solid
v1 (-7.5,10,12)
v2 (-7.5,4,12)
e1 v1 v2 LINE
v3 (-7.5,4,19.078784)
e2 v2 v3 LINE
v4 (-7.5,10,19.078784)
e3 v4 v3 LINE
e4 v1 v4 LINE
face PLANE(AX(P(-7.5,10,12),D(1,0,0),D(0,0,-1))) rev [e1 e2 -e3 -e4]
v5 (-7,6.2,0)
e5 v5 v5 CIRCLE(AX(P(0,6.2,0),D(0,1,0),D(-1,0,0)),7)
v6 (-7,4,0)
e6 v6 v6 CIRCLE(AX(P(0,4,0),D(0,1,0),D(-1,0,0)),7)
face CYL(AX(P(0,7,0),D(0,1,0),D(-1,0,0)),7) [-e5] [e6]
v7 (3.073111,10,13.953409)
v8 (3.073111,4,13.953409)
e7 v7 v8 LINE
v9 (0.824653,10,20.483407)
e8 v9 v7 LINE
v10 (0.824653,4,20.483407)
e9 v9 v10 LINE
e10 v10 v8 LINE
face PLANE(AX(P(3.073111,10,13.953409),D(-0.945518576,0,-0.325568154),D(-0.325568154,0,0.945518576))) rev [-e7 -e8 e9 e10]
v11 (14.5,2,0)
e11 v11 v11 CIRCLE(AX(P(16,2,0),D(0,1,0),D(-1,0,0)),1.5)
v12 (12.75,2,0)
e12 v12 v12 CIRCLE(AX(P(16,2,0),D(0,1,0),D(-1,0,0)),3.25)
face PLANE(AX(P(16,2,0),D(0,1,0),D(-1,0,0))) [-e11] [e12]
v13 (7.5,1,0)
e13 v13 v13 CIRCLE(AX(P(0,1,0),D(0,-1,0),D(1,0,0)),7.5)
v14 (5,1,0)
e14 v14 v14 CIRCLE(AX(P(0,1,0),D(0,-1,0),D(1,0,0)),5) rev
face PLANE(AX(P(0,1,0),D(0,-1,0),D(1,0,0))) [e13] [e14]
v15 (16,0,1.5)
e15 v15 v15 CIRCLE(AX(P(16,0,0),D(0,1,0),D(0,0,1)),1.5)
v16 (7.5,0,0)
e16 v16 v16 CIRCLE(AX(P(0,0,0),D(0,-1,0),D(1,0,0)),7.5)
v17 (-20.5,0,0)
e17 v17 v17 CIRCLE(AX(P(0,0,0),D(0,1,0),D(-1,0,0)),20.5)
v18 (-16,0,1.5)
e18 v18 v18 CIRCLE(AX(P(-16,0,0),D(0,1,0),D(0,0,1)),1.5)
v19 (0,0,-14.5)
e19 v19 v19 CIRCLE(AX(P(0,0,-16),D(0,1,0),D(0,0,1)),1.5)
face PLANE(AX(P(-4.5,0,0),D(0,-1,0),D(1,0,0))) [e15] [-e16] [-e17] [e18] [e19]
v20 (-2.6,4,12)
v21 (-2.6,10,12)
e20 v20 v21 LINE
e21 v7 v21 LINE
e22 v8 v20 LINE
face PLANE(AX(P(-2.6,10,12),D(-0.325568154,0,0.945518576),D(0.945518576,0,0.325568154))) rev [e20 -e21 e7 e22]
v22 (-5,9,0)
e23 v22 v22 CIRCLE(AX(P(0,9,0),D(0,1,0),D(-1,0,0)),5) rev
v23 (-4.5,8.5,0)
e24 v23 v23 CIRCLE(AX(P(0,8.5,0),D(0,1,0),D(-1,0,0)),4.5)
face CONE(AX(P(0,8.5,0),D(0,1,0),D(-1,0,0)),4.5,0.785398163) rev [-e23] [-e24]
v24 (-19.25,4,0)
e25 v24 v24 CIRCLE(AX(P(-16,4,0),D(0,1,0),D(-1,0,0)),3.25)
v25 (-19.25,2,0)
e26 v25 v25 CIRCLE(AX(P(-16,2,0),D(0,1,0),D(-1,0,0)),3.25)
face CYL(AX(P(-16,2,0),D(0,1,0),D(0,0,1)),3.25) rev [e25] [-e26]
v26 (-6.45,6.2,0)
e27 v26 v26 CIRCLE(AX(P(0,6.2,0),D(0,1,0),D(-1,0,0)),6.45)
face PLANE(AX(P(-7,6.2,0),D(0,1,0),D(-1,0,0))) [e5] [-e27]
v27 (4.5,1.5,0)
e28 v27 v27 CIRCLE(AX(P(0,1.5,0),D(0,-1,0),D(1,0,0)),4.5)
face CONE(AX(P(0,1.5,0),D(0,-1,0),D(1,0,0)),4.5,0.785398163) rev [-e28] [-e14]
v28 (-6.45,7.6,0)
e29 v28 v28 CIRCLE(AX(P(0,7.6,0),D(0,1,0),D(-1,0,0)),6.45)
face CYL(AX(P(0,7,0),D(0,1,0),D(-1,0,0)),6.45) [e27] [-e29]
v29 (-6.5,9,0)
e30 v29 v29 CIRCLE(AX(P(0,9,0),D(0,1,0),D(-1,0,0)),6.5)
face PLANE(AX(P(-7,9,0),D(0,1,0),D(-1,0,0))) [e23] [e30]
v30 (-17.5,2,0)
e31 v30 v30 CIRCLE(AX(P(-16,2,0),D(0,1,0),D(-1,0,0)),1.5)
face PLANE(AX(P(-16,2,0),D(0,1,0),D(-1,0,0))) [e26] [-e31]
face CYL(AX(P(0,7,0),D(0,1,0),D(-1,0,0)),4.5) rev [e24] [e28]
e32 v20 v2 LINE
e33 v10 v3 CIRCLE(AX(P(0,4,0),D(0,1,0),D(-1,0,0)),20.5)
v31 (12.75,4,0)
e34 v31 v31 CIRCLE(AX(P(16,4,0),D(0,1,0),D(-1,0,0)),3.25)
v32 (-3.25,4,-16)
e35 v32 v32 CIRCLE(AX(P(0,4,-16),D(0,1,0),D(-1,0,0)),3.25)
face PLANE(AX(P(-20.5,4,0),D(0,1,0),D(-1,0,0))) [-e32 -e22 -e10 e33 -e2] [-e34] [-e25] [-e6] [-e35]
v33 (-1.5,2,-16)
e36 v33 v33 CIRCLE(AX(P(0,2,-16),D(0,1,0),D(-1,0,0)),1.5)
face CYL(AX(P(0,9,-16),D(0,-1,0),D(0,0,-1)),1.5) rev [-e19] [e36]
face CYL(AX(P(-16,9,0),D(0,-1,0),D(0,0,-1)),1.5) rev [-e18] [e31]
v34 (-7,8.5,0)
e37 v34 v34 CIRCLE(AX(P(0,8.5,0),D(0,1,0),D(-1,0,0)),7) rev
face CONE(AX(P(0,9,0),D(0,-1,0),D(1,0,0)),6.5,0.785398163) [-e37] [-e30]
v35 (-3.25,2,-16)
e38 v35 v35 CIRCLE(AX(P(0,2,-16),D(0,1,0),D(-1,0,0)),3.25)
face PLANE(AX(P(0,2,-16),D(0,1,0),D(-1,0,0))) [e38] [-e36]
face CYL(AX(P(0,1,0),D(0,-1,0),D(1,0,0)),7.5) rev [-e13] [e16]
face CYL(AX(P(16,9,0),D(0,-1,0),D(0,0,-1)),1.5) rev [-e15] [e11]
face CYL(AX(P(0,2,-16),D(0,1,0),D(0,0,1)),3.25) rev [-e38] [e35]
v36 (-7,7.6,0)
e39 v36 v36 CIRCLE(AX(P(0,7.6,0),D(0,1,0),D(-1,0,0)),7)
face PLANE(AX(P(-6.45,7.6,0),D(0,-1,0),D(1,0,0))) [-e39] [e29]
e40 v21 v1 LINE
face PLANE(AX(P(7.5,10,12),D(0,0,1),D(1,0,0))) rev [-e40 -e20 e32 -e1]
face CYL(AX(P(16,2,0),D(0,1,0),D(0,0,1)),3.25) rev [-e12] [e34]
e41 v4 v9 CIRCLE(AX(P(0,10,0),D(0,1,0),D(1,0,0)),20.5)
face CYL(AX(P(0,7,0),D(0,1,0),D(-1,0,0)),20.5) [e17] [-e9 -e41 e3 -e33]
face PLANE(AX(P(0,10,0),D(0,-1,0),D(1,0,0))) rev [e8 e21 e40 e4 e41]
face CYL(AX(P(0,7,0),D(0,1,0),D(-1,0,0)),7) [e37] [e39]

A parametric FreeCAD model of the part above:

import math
import FreeCAD as App
import Part
import Sketcher
Q = App.Units.Quantity


def edges_at(feature, points):
    """Names of the edges that pass closest to the given points."""
    edges = feature.Shape.Edges
    near = lambda p: min(range(len(edges)), key=lambda i: edges[i].distToShape(Part.Vertex(*p))[0])
    return sorted({f"Edge{near(p) + 1}" for p in points})


def add_polygon(sketch, points):
    """Adds a closed chain of lines whose ends are joined by coincident constraints."""
    first, n = sketch.GeometryCount, len(points)
    for a, b in zip(points, points[1:] + points[:1]):
        sketch.addGeometry(Part.LineSegment(App.Vector(*a, 0), App.Vector(*b, 0)), False)
    for i in range(n):
        sketch.addConstraint(Sketcher.Constraint("Coincident", first + i, 2, first + (i + 1) % n, 1))

doc = App.newDocument("Part")
body = doc.addObject("PartDesign::Body", "Body")

# Sketch on XY plane
sketch1 = body.newObject("Sketcher::SketchObject", "Sketch")
sketch1.AttachmentSupport = (doc.getObject("XY_Plane"), [""])
sketch1.MapMode = "FlatFace"
add_polygon(sketch1, [(-20.5, 0), (-4.5, 0), (-4.5, 9), (-7, 9), (-7, 7.6), (-6.5, 7.6), (-6.5, 6.2), (-7, 6.2), (-7, 4), (-20.5, 4)])  # lines 0-9
sketch1.addConstraint([
    Sketcher.Constraint("Horizontal", 0),
    Sketcher.Constraint("Vertical", 1),
    Sketcher.Constraint("Horizontal", 2),
    Sketcher.Constraint("Vertical", 3),
    Sketcher.Constraint("Horizontal", 4),
    Sketcher.Constraint("Vertical", 5),
    Sketcher.Constraint("Horizontal", 6),
    Sketcher.Constraint("Vertical", 7),
    Sketcher.Constraint("Horizontal", 8),
    Sketcher.Constraint("Vertical", 9),
    Sketcher.Constraint("PointOnObject", 0, 2, -1),
    Sketcher.Constraint("Vertical", 3, 2, 6, 2),
    Sketcher.Constraint("Equal", 3, 5),
    Sketcher.Constraint("DistanceX", 0, 1, 0, 2, 16.0),
    Sketcher.Constraint("DistanceY", 1, 1, 1, 2, 9.0),
    Sketcher.Constraint("DistanceY", 9, 2, 9, 1, 4.0),
    Sketcher.Constraint("DistanceX", 2, 2, 2, 1, 2.5),
    Sketcher.Constraint("DistanceY", 3, 2, 3, 1, 1.4),
    Sketcher.Constraint("DistanceX", 2, 2, -1, 1, 7.0),
    Sketcher.Constraint("DistanceX", 4, 1, 4, 2, 0.55),
])
revolution = body.newObject("PartDesign::Revolution", "Revolution")
revolution.Profile = sketch1
revolution.ReferenceAxis = (sketch1, ["V_Axis"])
revolution.Angle = 360

# Sketch on XZ plane
sketch2 = body.newObject("Sketcher::SketchObject", "Sketch001")
sketch2.AttachmentSupport = (doc.getObject("XZ_Plane"), [""])
sketch2.MapMode = "FlatFace"
sketch2.addGeometry([
    Part.Circle(App.Vector(-16, 0, 0), App.Vector(0, 0, 1), 1.5),
    Part.Circle(App.Vector(0, -16, 0), App.Vector(0, 0, 1), 1.5),
    Part.Circle(App.Vector(16, 0, 0), App.Vector(0, 0, 1), 1.5),
], False)
sketch2.addConstraint([
    Sketcher.Constraint("Equal", 0, 1),
    Sketcher.Constraint("Equal", 1, 2),
    Sketcher.Constraint("Symmetric", 0, 3, 2, 3, -1, 1),
    Sketcher.Constraint("PointOnObject", 0, 3, -1),
    Sketcher.Constraint("PointOnObject", 1, 3, -2),
    Sketcher.Constraint("Diameter", 0, 3.0),
    Sketcher.Constraint("DistanceX", 0, 3, -1, 1, 16.0),
    Sketcher.Constraint("DistanceY", 1, 3, -1, 1, 16.0),
])
pocket1 = body.newObject("PartDesign::Pocket", "Pocket")
pocket1.Profile = sketch2
pocket1.Type = "ThroughAll"

# Sketch on XZ plane
sketch3 = body.newObject("Sketcher::SketchObject", "Sketch002")
sketch3.AttachmentSupport = (doc.getObject("XZ_Plane"), [""])
sketch3.MapMode = "FlatFace"
sketch3.AttachmentOffset = App.Placement(App.Vector(0, 0, -4), App.Rotation())
sketch3.addGeometry([
    Part.Circle(App.Vector(-16, 0, 0), App.Vector(0, 0, 1), 3.2),
    Part.Circle(App.Vector(0, -16, 0), App.Vector(0, 0, 1), 3.2),
    Part.Circle(App.Vector(16, 0, 0), App.Vector(0, 0, 1), 3.2),
], False)
sketch3.addConstraint([
    Sketcher.Constraint("Equal", 0, 1),
    Sketcher.Constraint("Equal", 1, 2),
    Sketcher.Constraint("Symmetric", 0, 3, 2, 3, -1, 1),
    Sketcher.Constraint("PointOnObject", 0, 3, -1),
    Sketcher.Constraint("PointOnObject", 1, 3, -2),
    Sketcher.Constraint("Diameter", 0, 6.5),
    Sketcher.Constraint("DistanceX", 0, 3, -1, 1, 16.0),
    Sketcher.Constraint("DistanceY", 1, 3, -1, 1, 16.0),
])
pocket2 = body.newObject("PartDesign::Pocket", "Pocket001")
pocket2.Profile = sketch3
pocket2.Length = 2
pocket2.Reversed = True

# Sketch on XZ plane
sketch4 = body.newObject("Sketcher::SketchObject", "Sketch003")
sketch4.AttachmentSupport = (doc.getObject("XZ_Plane"), [""])
sketch4.MapMode = "FlatFace"
sketch4.AttachmentOffset = App.Placement(App.Vector(0, 0, -10), App.Rotation())
sketch4.addGeometry([
    Part.LineSegment(App.Vector(8, 12, 0), App.Vector(-8, 12, 0)),
    Part.LineSegment(App.Vector(-8, 12, 0), App.Vector(-8, 19, 0)),
    Part.ArcOfCircle(Part.Circle(App.Vector(0, 0, 0), App.Vector(0, 0, 1), 20), math.radians(69), math.radians(111)),
    Part.LineSegment(App.Vector(8, 19, 0), App.Vector(8, 12, 0)),
], False)
sketch4.addConstraint([
    Sketcher.Constraint("Coincident", 0, 2, 1, 1),
    Sketcher.Constraint("Coincident", 1, 2, 2, 2),
    Sketcher.Constraint("Coincident", 2, 1, 3, 1),
    Sketcher.Constraint("Coincident", 3, 2, 0, 1),
    Sketcher.Constraint("Horizontal", 0),
    Sketcher.Constraint("Vertical", 1),
    Sketcher.Constraint("Vertical", 3),
    Sketcher.Constraint("Coincident", 2, 3, -1, 1),
    Sketcher.Constraint("Horizontal", 1, 2, 2, 1),
    Sketcher.Constraint("Radius", 2, 20.5),
    Sketcher.Constraint("DistanceX", 0, 2, 0, 1, 15.0),
    Sketcher.Constraint("DistanceY", -1, 1, 0, 2, 12.0),
])
pad1 = body.newObject("PartDesign::Pad", "Pad")
pad1.Profile = sketch4
pad1.Length = 6

# Sketch on XZ plane
sketch5 = body.newObject("Sketcher::SketchObject", "Sketch004")
sketch5.AttachmentSupport = (doc.getObject("XZ_Plane"), [""])
sketch5.MapMode = "FlatFace"
sketch5.addGeometry(Part.Circle(App.Vector(0, 0, 0), App.Vector(0, 0, 1), 8), False)
sketch5.addConstraint([
    Sketcher.Constraint("Coincident", 0, 3, -1, 1),
    Sketcher.Constraint("Diameter", 0, 15.0),
])
pocket3 = body.newObject("PartDesign::Pocket", "Pocket002")
pocket3.Profile = sketch5
pocket3.Length = 1
doc.recompute()

chamfer = body.newObject("PartDesign::Chamfer", "Chamfer")
chamfer.Base = (pocket3, edges_at(pocket3, [(4.5, 1, 0), (4.5, 9, 0)]))
chamfer.Size = 0.5
doc.recompute()

chamfer2 = body.newObject("PartDesign::Chamfer", "Chamfer001")
chamfer2.Base = (chamfer, edges_at(chamfer, [(7, 9, 0)]))
chamfer2.Size = 0.5

# Sketch on XZ plane
sketch6 = body.newObject("Sketcher::SketchObject", "Sketch005")
sketch6.AttachmentSupport = (doc.getObject("XZ_Plane"), [""])
sketch6.MapMode = "FlatFace"
sketch6.AttachmentOffset = App.Placement(App.Vector(0, 0, -10), App.Rotation())
add_polygon(sketch6, [(2, 14), (-1.4, 21.5), (7.5, 20.9), (7.5, 12), (-2.6, 12)])  # lines 0-4
sketch6.addConstraint([
    Sketcher.Constraint("Vertical", 2),
    Sketcher.Constraint("Horizontal", 3),
    Sketcher.Constraint("Perpendicular", 0, 4),
    Sketcher.Constraint("Angle", 0, Q("114 deg")),
    Sketcher.Constraint("Distance", 4, 5.0),
    Sketcher.Constraint("DistanceX", 3, 2, 3, 1, 10.1),
    Sketcher.Constraint("DistanceY", -1, 1, 2, 2, 12.0),
    Sketcher.Constraint("DistanceX", -1, 1, 1, 2, 7.5),
    Sketcher.Constraint("DistanceY", 2, 2, 2, 1, 8.908922),
    Sketcher.Constraint("DistanceY", -1, 1, 0, 2, 21.493691),
])
pocket4 = body.newObject("PartDesign::Pocket", "Pocket003")
pocket4.Profile = sketch6
pocket4.Length = 6
pocket4.Reversed = True

# Sketch on XZ plane
sketch7 = body.newObject("Sketcher::SketchObject", "Sketch006")
sketch7.AttachmentSupport = (doc.getObject("XZ_Plane"), [""])
sketch7.MapMode = "FlatFace"
sketch7.AttachmentOffset = App.Placement(App.Vector(0, 0, -10), App.Rotation())
sketch7.addGeometry([
    Part.LineSegment(App.Vector(3.1, 14, 0), App.Vector(-2.6, 12, 0)),  # 0
    Part.LineSegment(App.Vector(-2.6, 12, 0), App.Vector(2, 14, 0)),  # 1
    Part.LineSegment(App.Vector(2, 14, 0), App.Vector(-0.9, 20.5, 0)),  # 2
    Part.ArcOfCircle(Part.Circle(App.Vector(0, 0, 0), App.Vector(0, 0, 1), 20.5), math.radians(87.69), math.radians(92.52)),  # 3
    Part.LineSegment(App.Vector(0.8, 20.5, 0), App.Vector(3.1, 14, 0)),  # 4
], False)
sketch7.addConstraint([
    Sketcher.Constraint("Coincident", 0, 2, 1, 1),
    Sketcher.Constraint("Coincident", 1, 2, 2, 1),
    Sketcher.Constraint("Coincident", 2, 2, 3, 2),
    Sketcher.Constraint("Coincident", 3, 1, 4, 1),
    Sketcher.Constraint("Coincident", 4, 2, 0, 1),
    Sketcher.Constraint("Coincident", 3, 3, -1, 1),
    Sketcher.Constraint("Perpendicular", 1, 2),
    Sketcher.Constraint("Perpendicular", 0, 4),
    Sketcher.Constraint("Radius", 3, 20.5),
    Sketcher.Constraint("Angle", 0, Q("-161 deg")),
    Sketcher.Constraint("Angle", 1, Q("24 deg")),
    Sketcher.Constraint("Distance", 0, 6.0),
    Sketcher.Constraint("Distance", 1, 5.0),
    Sketcher.Constraint("DistanceY", -1, 1, 0, 2, 12.0),
    Sketcher.Constraint("DistanceX", 0, 2, -1, 1, 2.6),
])
pad2 = body.newObject("PartDesign::Pad", "Pad001")
pad2.Profile = sketch7
pad2.Length = 6

doc.recompute()
